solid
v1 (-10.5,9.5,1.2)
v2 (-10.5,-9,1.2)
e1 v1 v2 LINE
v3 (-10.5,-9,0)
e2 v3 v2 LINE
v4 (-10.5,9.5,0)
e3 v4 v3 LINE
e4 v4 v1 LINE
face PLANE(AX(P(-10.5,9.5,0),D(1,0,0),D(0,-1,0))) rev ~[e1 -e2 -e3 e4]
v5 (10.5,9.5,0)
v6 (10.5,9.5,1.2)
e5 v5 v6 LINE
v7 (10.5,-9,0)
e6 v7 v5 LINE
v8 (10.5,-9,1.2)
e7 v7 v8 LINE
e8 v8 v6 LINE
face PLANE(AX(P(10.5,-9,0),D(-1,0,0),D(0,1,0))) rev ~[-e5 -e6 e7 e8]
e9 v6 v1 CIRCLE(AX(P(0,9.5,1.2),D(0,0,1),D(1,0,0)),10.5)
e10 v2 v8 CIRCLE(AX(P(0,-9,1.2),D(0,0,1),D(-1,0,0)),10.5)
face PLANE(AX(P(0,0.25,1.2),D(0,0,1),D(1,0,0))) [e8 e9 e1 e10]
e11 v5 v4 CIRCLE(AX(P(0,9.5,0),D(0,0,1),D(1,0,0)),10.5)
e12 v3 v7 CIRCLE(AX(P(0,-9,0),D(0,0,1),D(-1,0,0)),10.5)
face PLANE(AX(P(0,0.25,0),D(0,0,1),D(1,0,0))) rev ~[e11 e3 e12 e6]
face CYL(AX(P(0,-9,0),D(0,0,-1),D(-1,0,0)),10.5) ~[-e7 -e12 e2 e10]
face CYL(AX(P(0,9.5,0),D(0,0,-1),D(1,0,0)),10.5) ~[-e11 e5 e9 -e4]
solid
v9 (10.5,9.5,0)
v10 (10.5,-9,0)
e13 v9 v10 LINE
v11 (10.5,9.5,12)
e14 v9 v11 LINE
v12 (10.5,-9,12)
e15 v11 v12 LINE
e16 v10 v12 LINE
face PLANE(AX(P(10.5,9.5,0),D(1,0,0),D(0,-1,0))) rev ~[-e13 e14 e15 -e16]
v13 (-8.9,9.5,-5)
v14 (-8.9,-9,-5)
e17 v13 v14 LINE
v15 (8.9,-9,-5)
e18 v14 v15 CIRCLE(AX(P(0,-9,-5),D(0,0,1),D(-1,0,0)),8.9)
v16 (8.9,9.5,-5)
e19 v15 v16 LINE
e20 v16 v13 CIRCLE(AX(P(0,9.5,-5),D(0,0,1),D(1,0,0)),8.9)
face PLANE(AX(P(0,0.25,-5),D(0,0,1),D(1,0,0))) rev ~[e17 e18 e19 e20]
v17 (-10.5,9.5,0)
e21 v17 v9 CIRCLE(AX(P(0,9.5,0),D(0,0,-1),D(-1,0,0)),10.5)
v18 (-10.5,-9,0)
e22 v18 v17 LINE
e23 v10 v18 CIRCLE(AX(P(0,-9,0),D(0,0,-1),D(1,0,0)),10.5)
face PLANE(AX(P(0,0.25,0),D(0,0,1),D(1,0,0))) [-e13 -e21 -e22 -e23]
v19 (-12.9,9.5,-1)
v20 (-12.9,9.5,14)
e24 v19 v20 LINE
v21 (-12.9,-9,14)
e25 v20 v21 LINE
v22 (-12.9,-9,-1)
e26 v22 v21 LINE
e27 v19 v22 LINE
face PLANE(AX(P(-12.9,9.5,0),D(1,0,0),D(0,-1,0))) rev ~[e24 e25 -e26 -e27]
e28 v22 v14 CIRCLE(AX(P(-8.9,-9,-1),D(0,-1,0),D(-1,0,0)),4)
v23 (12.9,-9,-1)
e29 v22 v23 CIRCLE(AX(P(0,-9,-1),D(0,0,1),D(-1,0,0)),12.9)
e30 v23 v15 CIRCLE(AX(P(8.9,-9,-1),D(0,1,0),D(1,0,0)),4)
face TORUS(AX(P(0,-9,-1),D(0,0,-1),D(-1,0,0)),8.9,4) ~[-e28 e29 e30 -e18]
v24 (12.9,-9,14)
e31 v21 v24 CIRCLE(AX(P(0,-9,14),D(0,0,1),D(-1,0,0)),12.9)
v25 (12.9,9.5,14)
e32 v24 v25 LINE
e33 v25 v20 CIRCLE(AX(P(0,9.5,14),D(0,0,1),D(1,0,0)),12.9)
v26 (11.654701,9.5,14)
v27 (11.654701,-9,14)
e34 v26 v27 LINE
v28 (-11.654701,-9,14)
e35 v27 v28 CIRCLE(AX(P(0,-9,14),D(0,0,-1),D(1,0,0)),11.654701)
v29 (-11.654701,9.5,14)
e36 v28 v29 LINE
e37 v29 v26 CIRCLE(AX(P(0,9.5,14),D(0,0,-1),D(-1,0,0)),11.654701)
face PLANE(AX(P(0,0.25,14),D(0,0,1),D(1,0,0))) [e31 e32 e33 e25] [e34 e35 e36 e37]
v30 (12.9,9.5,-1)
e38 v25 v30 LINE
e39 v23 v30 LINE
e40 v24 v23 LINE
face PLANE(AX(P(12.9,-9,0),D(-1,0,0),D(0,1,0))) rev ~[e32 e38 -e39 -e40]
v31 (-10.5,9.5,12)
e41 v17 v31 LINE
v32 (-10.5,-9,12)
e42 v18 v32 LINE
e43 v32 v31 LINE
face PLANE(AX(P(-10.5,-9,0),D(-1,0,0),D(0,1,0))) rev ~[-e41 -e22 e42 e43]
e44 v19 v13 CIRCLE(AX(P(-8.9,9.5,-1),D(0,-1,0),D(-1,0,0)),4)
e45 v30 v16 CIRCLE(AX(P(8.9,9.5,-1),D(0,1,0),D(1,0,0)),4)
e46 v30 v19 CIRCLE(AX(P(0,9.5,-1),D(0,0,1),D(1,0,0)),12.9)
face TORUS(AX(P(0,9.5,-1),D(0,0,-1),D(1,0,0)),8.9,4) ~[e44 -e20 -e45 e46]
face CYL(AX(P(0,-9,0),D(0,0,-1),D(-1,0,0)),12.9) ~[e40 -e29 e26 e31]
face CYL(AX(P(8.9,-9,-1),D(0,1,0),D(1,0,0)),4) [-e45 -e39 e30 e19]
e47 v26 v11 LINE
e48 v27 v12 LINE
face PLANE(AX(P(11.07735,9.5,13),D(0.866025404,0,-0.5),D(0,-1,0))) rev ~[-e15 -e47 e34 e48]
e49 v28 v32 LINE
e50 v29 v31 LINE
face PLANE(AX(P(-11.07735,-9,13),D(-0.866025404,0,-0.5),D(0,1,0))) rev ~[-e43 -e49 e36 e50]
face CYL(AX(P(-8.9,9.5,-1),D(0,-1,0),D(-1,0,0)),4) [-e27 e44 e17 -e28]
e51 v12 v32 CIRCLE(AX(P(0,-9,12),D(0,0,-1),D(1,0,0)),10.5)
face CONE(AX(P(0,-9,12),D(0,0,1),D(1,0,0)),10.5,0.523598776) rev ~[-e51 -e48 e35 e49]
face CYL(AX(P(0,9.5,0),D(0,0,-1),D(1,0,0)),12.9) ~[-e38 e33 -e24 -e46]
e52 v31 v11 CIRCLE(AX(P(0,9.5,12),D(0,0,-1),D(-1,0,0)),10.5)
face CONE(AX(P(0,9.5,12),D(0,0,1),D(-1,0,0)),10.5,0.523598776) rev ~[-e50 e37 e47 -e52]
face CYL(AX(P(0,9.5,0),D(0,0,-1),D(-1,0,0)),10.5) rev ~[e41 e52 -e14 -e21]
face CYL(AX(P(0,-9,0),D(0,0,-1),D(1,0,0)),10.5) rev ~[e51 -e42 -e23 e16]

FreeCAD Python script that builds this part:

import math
import FreeCAD as App
import Part
import Sketcher

V = App.Vector
Q = App.Units.Quantity


def edges_at(feature, points):
    """Names of the edges that pass closest to the given points."""
    edges = feature.Shape.Edges
    near = lambda p: min(range(len(edges)), key=lambda i: edges[i].distToShape(Part.Vertex(*p))[0])
    return sorted({f"Edge{near(p) + 1}" for p in points})

doc = App.newDocument("Part")
body = doc.addObject("PartDesign::Body", "Body")

# Sketch on XY plane
sketch1 = doc.addObject("Sketcher::SketchObject", "Sketch")
body.addObject(sketch1)
sketch1.AttachmentSupport = (doc.XY_Plane, [""])
sketch1.MapMode = "FlatFace"
sketch1.addGeometry([
    Part.ArcOfCircle(Part.Circle(V(0, 9.5, 0), V(0, 0, 1), 12.9), math.radians(0), math.radians(180)),
    Part.LineSegment(V(-12.9, 9.5, 0), V(-12.9, -9, 0)),
    Part.ArcOfCircle(Part.Circle(V(0, -9, 0), V(0, 0, 1), 12.9), math.radians(180), math.radians(360)),
    Part.LineSegment(V(12.9, -9, 0), V(12.9, 9.5, 0)),
], False)
sketch1.addConstraint([
    Sketcher.Constraint("Tangent", 0, 2, 1, 1),
    Sketcher.Constraint("Tangent", 1, 2, 2, 1),
    Sketcher.Constraint("Tangent", 2, 2, 3, 1),
    Sketcher.Constraint("Tangent", 3, 2, 0, 1),
    Sketcher.Constraint("Vertical", 1),
    Sketcher.Constraint("Vertical", 3),
    Sketcher.Constraint("PointOnObject", 0, 3, -2),
    Sketcher.Constraint("Radius", 0, Q("12.9 mm")),
    Sketcher.Constraint("DistanceY", 1, 2, 1, 1, Q("18.5 mm")),
    Sketcher.Constraint("DistanceY", 2, 3, -1, 1, Q("9 mm")),
])
pad1 = doc.addObject("PartDesign::Pad", "Pad")
body.addObject(pad1)
pad1.Profile = sketch1
pad1.Length = 5
pad1.Reversed = True

# Sketch on XY plane
sketch2 = doc.addObject("Sketcher::SketchObject", "Sketch001")
body.addObject(sketch2)
sketch2.AttachmentSupport = (doc.XY_Plane, [""])
sketch2.MapMode = "FlatFace"
sketch2.addGeometry([
    Part.ArcOfCircle(Part.Circle(V(0, 9.5, 0), V(0, 0, 1), 12.9), math.radians(0), math.radians(180)),  # 0
    Part.LineSegment(V(-12.9, 9.5, 0), V(-12.9, -9, 0)),  # 1
    Part.ArcOfCircle(Part.Circle(V(0, -9, 0), V(0, 0, 1), 12.9), math.radians(180), math.radians(360)),  # 2
    Part.LineSegment(V(12.9, -9, 0), V(12.9, 9.5, 0)),  # 3
    Part.ArcOfCircle(Part.Circle(V(0, -9, 0), V(0, 0, 1), 10.5), math.radians(180), math.radians(360)),  # 4
    Part.LineSegment(V(-10.5, -9, 0), V(-10.5, 9.5, 0)),  # 5
    Part.ArcOfCircle(Part.Circle(V(0, 9.5, 0), V(0, 0, 1), 10.5), math.radians(0), math.radians(180)),  # 6
    Part.LineSegment(V(10.5, 9.5, 0), V(10.5, -9, 0)),  # 7
], False)
sketch2.addConstraint([
    Sketcher.Constraint("Tangent", 0, 2, 1, 1),
    Sketcher.Constraint("Tangent", 1, 2, 2, 1),
    Sketcher.Constraint("Tangent", 2, 2, 3, 1),
    Sketcher.Constraint("Tangent", 3, 2, 0, 1),
    Sketcher.Constraint("Tangent", 4, 1, 5, 1),
    Sketcher.Constraint("Tangent", 5, 2, 6, 2),
    Sketcher.Constraint("Tangent", 6, 1, 7, 1),
    Sketcher.Constraint("Tangent", 7, 2, 4, 2),
    Sketcher.Constraint("Vertical", 1),
    Sketcher.Constraint("Vertical", 3),
    Sketcher.Constraint("Vertical", 5),
    Sketcher.Constraint("Vertical", 7),
    Sketcher.Constraint("Coincident", 4, 3, 2, 3),
    Sketcher.Constraint("PointOnObject", 0, 3, -2),
    Sketcher.Constraint("Horizontal", 6, 3, 0, 2),
    Sketcher.Constraint("Radius", 0, Q("12.9 mm")),
    Sketcher.Constraint("Radius", 4, Q("10.5 mm")),
    Sketcher.Constraint("DistanceY", 1, 2, 1, 1, Q("18.5 mm")),
    Sketcher.Constraint("DistanceY", 2, 3, -1, 1, Q("9 mm")),
])
pad2 = doc.addObject("PartDesign::Pad", "Pad001")
body.addObject(pad2)
pad2.Profile = sketch2
pad2.Length = 14
doc.recompute()

chamfer = doc.addObject("PartDesign::Chamfer", "Chamfer")
body.addObject(chamfer)
chamfer.Base = (pad2, edges_at(pad2, [
    (-10.5, 0.25, 14),
    (0, 20, 14),
    (10.5, 0.25, 14),
    (0, -19.5, 14),
]))
chamfer.ChamferType = "Two distances"
chamfer.Size = 1.154701
chamfer.Size2 = 2
doc.recompute()

fillet = doc.addObject("PartDesign::Fillet", "Fillet")
body.addObject(fillet)
fillet.Base = (chamfer, edges_at(chamfer, [
    (0, 22.4, -5),
    (-12.9, 0.25, -5),
    (0, -21.9, -5),
    (12.9, 0.25, -5),
]))
fillet.Radius = 4
body2 = doc.addObject("PartDesign::Body", "Body001")

# Sketch on XY plane
sketch3 = doc.addObject("Sketcher::SketchObject", "Sketch002")
body2.addObject(sketch3)
sketch3.AttachmentSupport = (doc.getObject("XY_Plane001"), [""])
sketch3.MapMode = "FlatFace"
sketch3.addGeometry([
    Part.LineSegment(V(10.5, -9, 0), V(10.5, 9.5, 0)),
    Part.ArcOfCircle(Part.Circle(V(0, 9.5, 0), V(0, 0, 1), 10.5), math.radians(0), math.radians(180)),
    Part.LineSegment(V(-10.5, 9.5, 0), V(-10.5, -9, 0)),
    Part.ArcOfCircle(Part.Circle(V(0, -9, 0), V(0, 0, 1), 10.5), math.radians(180), math.radians(360)),
], False)
sketch3.addConstraint([
    Sketcher.Constraint("Tangent", 0, 2, 1, 1),
    Sketcher.Constraint("Tangent", 1, 2, 2, 1),
    Sketcher.Constraint("Tangent", 2, 2, 3, 1),
    Sketcher.Constraint("Tangent", 3, 2, 0, 1),
    Sketcher.Constraint("Vertical", 0),
    Sketcher.Constraint("Vertical", 2),
    Sketcher.Constraint("PointOnObject", 1, 3, -2),
    Sketcher.Constraint("Radius", 1, Q("10.5 mm")),
    Sketcher.Constraint("DistanceY", 0, 1, 0, 2, Q("18.5 mm")),
    Sketcher.Constraint("DistanceY", 3, 3, -1, 1, Q("9 mm")),
])
pad3 = doc.addObject("PartDesign::Pad", "Pad002")
body2.addObject(pad3)
pad3.Profile = sketch3
pad3.Length = 1.2

doc.recompute()
